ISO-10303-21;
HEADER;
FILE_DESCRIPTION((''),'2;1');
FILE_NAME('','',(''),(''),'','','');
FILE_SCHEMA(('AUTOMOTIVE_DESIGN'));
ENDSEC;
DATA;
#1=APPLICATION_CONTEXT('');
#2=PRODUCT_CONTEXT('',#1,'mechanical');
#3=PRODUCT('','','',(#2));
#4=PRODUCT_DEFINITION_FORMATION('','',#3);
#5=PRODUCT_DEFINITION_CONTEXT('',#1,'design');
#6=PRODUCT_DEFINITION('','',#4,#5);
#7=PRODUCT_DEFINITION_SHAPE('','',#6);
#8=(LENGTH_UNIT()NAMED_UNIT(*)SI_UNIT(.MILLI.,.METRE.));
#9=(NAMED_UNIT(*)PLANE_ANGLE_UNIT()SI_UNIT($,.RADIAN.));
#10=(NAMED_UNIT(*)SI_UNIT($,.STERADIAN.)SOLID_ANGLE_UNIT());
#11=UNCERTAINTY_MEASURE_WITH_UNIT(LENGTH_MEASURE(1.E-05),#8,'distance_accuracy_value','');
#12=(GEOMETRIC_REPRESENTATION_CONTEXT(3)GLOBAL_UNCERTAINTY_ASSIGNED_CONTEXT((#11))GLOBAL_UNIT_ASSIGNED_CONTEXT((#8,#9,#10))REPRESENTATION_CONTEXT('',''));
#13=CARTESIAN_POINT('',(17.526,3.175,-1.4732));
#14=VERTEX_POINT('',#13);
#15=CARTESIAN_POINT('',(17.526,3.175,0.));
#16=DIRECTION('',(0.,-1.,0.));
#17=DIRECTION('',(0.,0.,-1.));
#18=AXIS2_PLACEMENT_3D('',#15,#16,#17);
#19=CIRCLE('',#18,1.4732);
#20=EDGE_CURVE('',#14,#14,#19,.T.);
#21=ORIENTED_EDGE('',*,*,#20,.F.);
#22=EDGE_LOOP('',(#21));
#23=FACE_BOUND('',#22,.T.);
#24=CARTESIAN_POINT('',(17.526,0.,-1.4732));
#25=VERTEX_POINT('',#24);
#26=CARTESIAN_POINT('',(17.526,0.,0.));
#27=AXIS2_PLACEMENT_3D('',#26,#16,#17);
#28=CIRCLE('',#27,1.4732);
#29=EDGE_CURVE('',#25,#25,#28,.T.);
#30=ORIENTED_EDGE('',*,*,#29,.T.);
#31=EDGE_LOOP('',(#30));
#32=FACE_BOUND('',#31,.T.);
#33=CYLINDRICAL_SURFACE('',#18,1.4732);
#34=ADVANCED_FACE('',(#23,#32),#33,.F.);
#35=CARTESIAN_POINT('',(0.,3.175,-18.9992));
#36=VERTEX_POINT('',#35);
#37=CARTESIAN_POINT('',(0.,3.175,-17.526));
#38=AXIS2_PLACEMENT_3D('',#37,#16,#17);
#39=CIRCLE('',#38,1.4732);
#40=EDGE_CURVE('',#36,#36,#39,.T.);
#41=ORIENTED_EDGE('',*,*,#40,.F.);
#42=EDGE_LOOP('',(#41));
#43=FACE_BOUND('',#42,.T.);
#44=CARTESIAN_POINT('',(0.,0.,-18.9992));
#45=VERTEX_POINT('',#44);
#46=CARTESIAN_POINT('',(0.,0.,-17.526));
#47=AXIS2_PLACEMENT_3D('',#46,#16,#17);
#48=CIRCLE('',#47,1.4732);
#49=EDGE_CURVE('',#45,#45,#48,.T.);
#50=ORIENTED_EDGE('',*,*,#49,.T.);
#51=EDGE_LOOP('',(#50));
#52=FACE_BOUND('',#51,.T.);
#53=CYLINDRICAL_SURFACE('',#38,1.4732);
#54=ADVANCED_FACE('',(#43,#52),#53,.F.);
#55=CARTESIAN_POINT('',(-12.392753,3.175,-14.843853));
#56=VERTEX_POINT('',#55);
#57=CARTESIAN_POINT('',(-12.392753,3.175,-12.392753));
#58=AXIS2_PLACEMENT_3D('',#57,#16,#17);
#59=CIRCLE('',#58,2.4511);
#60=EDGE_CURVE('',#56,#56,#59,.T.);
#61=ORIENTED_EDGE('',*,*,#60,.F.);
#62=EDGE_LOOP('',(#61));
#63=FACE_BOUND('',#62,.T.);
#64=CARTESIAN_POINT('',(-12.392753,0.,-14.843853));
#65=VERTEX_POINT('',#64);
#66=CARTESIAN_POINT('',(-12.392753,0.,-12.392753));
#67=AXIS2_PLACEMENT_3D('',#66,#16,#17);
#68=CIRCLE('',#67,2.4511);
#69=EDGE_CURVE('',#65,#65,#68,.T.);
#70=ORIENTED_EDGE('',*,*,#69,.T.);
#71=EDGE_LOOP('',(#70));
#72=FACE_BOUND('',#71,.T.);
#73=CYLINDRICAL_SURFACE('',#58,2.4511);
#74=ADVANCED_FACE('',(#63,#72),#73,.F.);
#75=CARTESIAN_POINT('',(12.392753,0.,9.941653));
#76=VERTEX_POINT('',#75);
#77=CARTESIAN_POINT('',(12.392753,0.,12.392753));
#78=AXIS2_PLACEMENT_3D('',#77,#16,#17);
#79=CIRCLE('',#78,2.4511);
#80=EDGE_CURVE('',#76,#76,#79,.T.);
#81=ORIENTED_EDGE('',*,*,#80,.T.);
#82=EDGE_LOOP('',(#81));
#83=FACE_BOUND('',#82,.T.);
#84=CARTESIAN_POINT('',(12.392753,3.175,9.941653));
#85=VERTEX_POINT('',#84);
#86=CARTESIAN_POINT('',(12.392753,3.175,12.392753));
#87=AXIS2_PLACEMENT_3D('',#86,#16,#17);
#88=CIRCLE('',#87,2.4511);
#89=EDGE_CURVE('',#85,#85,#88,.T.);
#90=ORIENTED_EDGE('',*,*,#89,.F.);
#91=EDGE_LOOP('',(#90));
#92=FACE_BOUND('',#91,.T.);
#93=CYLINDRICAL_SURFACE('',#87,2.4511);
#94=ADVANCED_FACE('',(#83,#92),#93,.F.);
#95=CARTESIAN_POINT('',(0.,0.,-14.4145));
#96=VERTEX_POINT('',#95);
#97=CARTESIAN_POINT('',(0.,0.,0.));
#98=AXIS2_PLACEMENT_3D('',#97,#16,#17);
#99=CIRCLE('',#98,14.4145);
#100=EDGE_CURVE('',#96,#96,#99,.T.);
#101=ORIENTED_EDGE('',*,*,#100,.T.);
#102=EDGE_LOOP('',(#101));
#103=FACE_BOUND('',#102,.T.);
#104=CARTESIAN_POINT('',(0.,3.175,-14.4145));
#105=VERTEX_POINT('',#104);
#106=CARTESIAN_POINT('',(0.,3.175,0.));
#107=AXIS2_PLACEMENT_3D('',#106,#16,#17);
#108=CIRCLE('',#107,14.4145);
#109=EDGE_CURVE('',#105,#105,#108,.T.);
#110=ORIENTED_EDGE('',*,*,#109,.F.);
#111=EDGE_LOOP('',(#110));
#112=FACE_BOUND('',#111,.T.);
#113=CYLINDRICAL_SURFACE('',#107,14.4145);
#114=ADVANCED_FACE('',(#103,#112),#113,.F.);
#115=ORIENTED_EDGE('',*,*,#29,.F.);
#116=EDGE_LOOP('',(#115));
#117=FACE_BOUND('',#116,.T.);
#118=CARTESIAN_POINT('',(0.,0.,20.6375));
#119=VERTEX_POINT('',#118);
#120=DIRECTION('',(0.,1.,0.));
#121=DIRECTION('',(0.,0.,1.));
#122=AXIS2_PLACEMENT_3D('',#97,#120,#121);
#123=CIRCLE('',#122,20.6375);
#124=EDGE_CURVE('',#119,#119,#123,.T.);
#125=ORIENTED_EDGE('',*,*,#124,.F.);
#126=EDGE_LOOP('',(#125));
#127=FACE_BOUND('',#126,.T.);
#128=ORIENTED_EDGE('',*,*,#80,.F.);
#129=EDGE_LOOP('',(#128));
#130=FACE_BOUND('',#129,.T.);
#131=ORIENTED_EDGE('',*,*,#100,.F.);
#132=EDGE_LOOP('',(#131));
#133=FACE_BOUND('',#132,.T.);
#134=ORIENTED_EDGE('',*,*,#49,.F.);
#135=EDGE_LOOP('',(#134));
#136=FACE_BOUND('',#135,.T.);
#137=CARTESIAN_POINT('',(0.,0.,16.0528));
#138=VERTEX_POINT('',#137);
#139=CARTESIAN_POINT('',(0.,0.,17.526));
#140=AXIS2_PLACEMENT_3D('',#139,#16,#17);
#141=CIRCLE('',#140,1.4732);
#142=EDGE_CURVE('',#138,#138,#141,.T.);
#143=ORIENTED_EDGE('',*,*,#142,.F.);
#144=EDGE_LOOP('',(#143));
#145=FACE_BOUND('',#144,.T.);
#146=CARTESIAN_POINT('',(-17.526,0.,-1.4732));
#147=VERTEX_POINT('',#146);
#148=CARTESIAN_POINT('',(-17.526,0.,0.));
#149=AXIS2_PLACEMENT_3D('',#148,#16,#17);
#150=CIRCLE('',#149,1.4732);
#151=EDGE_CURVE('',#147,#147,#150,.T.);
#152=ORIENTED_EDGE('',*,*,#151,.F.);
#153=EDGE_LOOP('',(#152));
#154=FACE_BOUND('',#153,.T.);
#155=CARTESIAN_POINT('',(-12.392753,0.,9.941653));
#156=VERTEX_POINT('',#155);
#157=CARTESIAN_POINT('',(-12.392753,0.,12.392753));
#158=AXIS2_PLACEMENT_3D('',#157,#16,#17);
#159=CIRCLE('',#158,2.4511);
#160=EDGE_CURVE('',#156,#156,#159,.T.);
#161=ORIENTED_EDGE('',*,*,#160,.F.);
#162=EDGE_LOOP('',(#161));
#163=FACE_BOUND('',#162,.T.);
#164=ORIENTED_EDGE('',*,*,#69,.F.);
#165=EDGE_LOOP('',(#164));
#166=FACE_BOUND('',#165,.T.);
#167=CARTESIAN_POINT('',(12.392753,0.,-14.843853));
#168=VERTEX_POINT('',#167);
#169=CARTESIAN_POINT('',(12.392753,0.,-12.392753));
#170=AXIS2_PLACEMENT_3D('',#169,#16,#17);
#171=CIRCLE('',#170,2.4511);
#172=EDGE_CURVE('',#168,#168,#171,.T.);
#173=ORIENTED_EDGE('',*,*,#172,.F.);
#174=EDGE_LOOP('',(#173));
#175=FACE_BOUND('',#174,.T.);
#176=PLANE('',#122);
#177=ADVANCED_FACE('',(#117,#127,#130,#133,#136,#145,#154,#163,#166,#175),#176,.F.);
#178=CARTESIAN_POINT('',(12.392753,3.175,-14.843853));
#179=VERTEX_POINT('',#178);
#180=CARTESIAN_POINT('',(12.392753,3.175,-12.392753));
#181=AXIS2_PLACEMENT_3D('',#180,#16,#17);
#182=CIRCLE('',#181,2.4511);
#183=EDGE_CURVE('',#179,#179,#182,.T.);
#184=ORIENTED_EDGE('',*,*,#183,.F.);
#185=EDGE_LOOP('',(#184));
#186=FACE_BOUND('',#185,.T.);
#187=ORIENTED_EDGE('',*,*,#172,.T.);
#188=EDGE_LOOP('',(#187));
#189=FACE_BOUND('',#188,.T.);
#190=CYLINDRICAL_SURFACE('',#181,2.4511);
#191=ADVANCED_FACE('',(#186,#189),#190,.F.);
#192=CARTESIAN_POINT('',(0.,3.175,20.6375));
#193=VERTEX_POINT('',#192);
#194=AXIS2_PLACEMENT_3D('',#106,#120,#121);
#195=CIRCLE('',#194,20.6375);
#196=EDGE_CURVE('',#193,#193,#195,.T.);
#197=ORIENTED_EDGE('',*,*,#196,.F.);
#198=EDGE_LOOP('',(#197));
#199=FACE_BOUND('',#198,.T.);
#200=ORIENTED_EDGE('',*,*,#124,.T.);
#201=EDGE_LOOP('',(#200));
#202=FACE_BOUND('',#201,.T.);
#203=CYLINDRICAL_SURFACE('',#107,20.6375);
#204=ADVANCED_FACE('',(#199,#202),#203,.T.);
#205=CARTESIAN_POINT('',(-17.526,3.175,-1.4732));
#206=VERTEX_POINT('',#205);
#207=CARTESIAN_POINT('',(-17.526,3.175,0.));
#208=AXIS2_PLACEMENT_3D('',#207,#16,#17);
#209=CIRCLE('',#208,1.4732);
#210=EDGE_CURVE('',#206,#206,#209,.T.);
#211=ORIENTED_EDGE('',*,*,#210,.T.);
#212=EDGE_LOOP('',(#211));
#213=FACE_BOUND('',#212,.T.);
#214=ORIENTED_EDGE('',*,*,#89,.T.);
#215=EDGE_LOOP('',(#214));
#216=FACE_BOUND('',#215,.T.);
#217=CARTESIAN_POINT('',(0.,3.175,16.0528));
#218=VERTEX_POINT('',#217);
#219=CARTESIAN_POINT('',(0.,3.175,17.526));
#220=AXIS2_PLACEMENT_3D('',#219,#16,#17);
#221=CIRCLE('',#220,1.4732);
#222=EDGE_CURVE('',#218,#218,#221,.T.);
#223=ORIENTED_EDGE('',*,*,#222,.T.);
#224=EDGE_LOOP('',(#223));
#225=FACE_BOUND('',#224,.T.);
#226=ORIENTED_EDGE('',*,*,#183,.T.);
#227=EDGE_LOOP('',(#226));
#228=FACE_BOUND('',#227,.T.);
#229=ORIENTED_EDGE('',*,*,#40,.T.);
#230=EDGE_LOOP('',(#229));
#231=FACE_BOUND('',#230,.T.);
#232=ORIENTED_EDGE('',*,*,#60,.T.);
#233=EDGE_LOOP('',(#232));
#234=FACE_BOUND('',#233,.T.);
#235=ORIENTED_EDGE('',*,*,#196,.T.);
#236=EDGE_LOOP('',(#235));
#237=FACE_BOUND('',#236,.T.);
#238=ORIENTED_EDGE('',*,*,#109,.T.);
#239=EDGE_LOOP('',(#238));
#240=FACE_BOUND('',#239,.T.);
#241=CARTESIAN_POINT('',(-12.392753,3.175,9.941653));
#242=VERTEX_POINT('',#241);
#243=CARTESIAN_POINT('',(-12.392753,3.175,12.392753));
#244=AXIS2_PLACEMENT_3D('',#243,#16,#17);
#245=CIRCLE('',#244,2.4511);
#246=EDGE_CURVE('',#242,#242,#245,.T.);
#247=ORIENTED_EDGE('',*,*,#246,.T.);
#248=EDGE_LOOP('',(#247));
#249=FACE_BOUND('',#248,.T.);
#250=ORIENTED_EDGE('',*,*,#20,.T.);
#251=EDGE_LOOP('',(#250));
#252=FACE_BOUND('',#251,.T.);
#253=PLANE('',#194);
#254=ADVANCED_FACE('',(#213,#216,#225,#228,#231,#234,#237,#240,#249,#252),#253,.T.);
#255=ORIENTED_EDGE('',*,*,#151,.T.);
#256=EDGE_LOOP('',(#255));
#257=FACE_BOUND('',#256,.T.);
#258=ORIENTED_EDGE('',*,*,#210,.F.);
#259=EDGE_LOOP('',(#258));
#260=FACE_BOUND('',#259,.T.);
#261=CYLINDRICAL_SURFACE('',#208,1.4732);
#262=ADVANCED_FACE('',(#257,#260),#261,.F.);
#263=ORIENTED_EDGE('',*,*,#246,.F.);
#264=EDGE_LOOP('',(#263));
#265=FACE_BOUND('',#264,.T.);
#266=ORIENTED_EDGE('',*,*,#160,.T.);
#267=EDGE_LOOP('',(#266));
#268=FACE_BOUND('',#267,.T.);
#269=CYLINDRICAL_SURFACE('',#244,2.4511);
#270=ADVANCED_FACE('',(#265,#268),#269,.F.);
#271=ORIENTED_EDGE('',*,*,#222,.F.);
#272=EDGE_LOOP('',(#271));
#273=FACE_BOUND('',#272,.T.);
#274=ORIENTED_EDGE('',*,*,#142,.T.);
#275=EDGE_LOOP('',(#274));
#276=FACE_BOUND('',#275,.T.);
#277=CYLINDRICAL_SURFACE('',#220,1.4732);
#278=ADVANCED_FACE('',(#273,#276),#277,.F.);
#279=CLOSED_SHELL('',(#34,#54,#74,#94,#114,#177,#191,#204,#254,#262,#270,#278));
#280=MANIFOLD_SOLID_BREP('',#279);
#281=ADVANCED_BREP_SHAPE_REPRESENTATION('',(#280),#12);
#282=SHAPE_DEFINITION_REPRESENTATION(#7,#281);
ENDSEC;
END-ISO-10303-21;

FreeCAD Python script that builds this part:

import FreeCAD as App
import Part
import Sketcher

V = App.Vector
Q = App.Units.Quantity

doc = App.newDocument("Part")
body = doc.addObject("PartDesign::Body", "Body")

sketch1 = doc.addObject("Sketcher::SketchObject", "Sketch")
body.addObject(sketch1)
sketch1.AttachmentSupport = (doc.XZ_Plane, [""])
sketch1.MapMode = "FlatFace"
sketch1.addGeometry(Part.Circle(V(0, 0, 0), V(0, 0, 1), 20.6375), False)
sketch1.addConstraint(Sketcher.Constraint("Coincident", 0, 3, -1, 1))
sketch1.addConstraint(Sketcher.Constraint("Diameter", 0, Q("1.625 in")))
pad1 = doc.addObject("PartDesign::Pad", "Pad")
body.addObject(pad1)
pad1.Profile = sketch1
pad1.Length = Q("0.125 in")
pad1.Reversed = True

sketch2 = doc.addObject("Sketcher::SketchObject", "Sketch001")
body.addObject(sketch2)
sketch2.AttachmentSupport = (doc.XZ_Plane, [""])
sketch2.MapMode = "FlatFace"
sketch2.addGeometry(Part.Circle(V(0, 0, 0), V(0, 0, 1), 14.4145), False)
sketch2.addConstraint(Sketcher.Constraint("Coincident", 0, 3, -1, 1))
sketch2.addConstraint(Sketcher.Constraint("Diameter", 0, Q("1.135 in")))
pocket1 = doc.addObject("PartDesign::Pocket", "Pocket")
body.addObject(pocket1)
pocket1.Profile = sketch2
pocket1.Type = "ThroughAll"

sketch3 = doc.addObject("Sketcher::SketchObject", "Sketch002")
body.addObject(sketch3)
sketch3.AttachmentSupport = (doc.XZ_Plane, [""])
sketch3.MapMode = "FlatFace"
sketch3.addGeometry(Part.Circle(V(0, 17.526, 0), V(0, 0, 1), 1.4732), False)
sketch3.addGeometry(Part.Circle(V(17.526, 0, 0), V(0, 0, 1), 1.4732), False)
sketch3.addGeometry(Part.Circle(V(0, -17.526, 0), V(0, 0, 1), 1.4732), False)
sketch3.addGeometry(Part.Circle(V(-17.526, 0, 0), V(0, 0, 1), 1.4732), False)
sketch3.addConstraint(Sketcher.Constraint("Equal", 0, 1))
sketch3.addConstraint(Sketcher.Constraint("Equal", 1, 2))
sketch3.addConstraint(Sketcher.Constraint("Equal", 2, 3))
sketch3.addConstraint(Sketcher.Constraint("Symmetric", 0, 3, 2, 3, -1, 1))
sketch3.addConstraint(Sketcher.Constraint("Symmetric", 1, 3, 3, 3, -1, 1))
sketch3.addConstraint(Sketcher.Constraint("PointOnObject", 0, 3, -2))
sketch3.addConstraint(Sketcher.Constraint("PointOnObject", 1, 3, -1))
sketch3.addConstraint(Sketcher.Constraint("Diameter", 0, Q("0.116 in")))
sketch3.addConstraint(Sketcher.Constraint("DistanceY", -1, 1, 0, 3, Q("0.69 in")))
sketch3.addConstraint(Sketcher.Constraint("DistanceX", -1, 1, 1, 3, Q("0.69 in")))
pocket2 = doc.addObject("PartDesign::Pocket", "Pocket001")
body.addObject(pocket2)
pocket2.Profile = sketch3
pocket2.Type = "ThroughAll"

sketch4 = doc.addObject("Sketcher::SketchObject", "Sketch003")
body.addObject(sketch4)
sketch4.AttachmentSupport = (doc.XZ_Plane, [""])
sketch4.MapMode = "FlatFace"
sketch4.addGeometry(Part.Circle(V(12.392753, 12.392753, 0), V(0, 0, 1), 2.4511), False)
sketch4.addGeometry(Part.Circle(V(12.392753, -12.392753, 0), V(0, 0, 1), 2.4511), False)
sketch4.addGeometry(Part.Circle(V(-12.392753, -12.392753, 0), V(0, 0, 1), 2.4511), False)
sketch4.addGeometry(Part.Circle(V(-12.392753, 12.392753, 0), V(0, 0, 1), 2.4511), False)
sketch4.addConstraint(Sketcher.Constraint("Equal", 0, 1))
sketch4.addConstraint(Sketcher.Constraint("Equal", 1, 2))
sketch4.addConstraint(Sketcher.Constraint("Equal", 2, 3))
sketch4.addConstraint(Sketcher.Constraint("Symmetric", 0, 3, 2, 3, -1, 1))
sketch4.addConstraint(Sketcher.Constraint("Symmetric", 1, 3, 3, 3, -1, 1))
sketch4.addConstraint(Sketcher.Constraint("Symmetric", 1, 3, 2, 3, -2))
sketch4.addConstraint(Sketcher.Constraint("Diameter", 0, Q("0.193 in")))
sketch4.addConstraint(Sketcher.Constraint("DistanceX", -1, 1, 0, 3, 12.392753))
sketch4.addConstraint(Sketcher.Constraint("DistanceY", -1, 1, 0, 3, 12.392753))
pocket3 = doc.addObject("PartDesign::Pocket", "Pocket002")
body.addObject(pocket3)
pocket3.Profile = sketch4
pocket3.Type = "ThroughAll"

doc.recompute()
